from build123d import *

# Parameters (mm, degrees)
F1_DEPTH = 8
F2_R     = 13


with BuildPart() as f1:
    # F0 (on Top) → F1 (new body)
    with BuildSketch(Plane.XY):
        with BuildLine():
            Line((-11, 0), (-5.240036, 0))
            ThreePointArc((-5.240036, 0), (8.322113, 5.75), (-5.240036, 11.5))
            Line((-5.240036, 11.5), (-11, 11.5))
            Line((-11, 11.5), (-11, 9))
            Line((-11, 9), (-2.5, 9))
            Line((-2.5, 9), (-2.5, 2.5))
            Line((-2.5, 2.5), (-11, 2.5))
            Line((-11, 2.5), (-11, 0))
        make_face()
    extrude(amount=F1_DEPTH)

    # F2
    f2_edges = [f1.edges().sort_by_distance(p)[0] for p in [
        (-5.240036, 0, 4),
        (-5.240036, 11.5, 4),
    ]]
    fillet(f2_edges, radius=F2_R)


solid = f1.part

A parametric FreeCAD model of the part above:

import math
import FreeCAD as App
import Part
import Sketcher
Q = App.Units.Quantity


def edges_at(feature, points):
    """Names of the edges that pass closest to the given points."""
    edges = feature.Shape.Edges
    near = lambda p: min(range(len(edges)), key=lambda i: edges[i].distToShape(Part.Vertex(*p))[0])
    return sorted({f"Edge{near(p) + 1}" for p in points})

doc = App.newDocument("Part")
body = doc.addObject("PartDesign::Body", "Body")

# Sketch on XY plane
sketch1 = body.newObject("Sketcher::SketchObject", "Sketch")
sketch1.AttachmentSupport = (doc.getObject("XY_Plane"), [""])
sketch1.MapMode = "FlatFace"
sketch1.addGeometry(Part.LineSegment(App.Vector(-11, 0, 0), App.Vector(-5.2, 0, 0)), False)
sketch1.addGeometry(Part.ArcOfCircle(Part.Circle(App.Vector(0.3, 5.8, 0), App.Vector(0, 0, 1), 8), math.radians(-134), math.radians(134)), False)
sketch1.addGeometry(Part.LineSegment(App.Vector(-5.2, 11.5, 0), App.Vector(-11, 11.5, 0)), False)
sketch1.addGeometry(Part.LineSegment(App.Vector(-11, 11.5, 0), App.Vector(-11, 9, 0)), False)
sketch1.addGeometry(Part.LineSegment(App.Vector(-11, 9, 0), App.Vector(-2.5, 9, 0)), False)
sketch1.addGeometry(Part.LineSegment(App.Vector(-2.5, 9, 0), App.Vector(-2.5, 2.5, 0)), False)
sketch1.addGeometry(Part.LineSegment(App.Vector(-2.5, 2.5, 0), App.Vector(-11, 2.5, 0)), False)
sketch1.addGeometry(Part.LineSegment(App.Vector(-11, 2.5, 0), App.Vector(-11, 0, 0)), False)
sketch1.addConstraint(Sketcher.Constraint("Coincident", 0, 2, 1, 1))
sketch1.addConstraint(Sketcher.Constraint("Coincident", 1, 2, 2, 1))
sketch1.addConstraint(Sketcher.Constraint("Coincident", 2, 2, 3, 1))
sketch1.addConstraint(Sketcher.Constraint("Coincident", 3, 2, 4, 1))
sketch1.addConstraint(Sketcher.Constraint("Coincident", 4, 2, 5, 1))
sketch1.addConstraint(Sketcher.Constraint("Coincident", 5, 2, 6, 1))
sketch1.addConstraint(Sketcher.Constraint("Coincident", 6, 2, 7, 1))
sketch1.addConstraint(Sketcher.Constraint("Coincident", 7, 2, 0, 1))
sketch1.addConstraint(Sketcher.Constraint("Horizontal", 0))
sketch1.addConstraint(Sketcher.Constraint("Horizontal", 2))
sketch1.addConstraint(Sketcher.Constraint("Vertical", 3))
sketch1.addConstraint(Sketcher.Constraint("Horizontal", 4))
sketch1.addConstraint(Sketcher.Constraint("Vertical", 5))
sketch1.addConstraint(Sketcher.Constraint("Horizontal", 6))
sketch1.addConstraint(Sketcher.Constraint("Vertical", 7))
sketch1.addConstraint(Sketcher.Constraint("PointOnObject", 0, 2, -1))
sketch1.addConstraint(Sketcher.Constraint("Vertical", 0, 2, 1, 2))
sketch1.addConstraint(Sketcher.Constraint("Vertical", 3, 2, 6, 2))
sketch1.addConstraint(Sketcher.Constraint("Equal", 3, 7))
sketch1.addConstraint(Sketcher.Constraint("Radius", 1, Q("8 mm")))
sketch1.addConstraint(Sketcher.Constraint("DistanceX", 4, 1, 4, 2, Q("8.5 mm")))
sketch1.addConstraint(Sketcher.Constraint("DistanceY", 3, 2, 3, 1, Q("2.5 mm")))
sketch1.addConstraint(Sketcher.Constraint("DistanceY", 5, 2, 5, 1, Q("6.5 mm")))
sketch1.addConstraint(Sketcher.Constraint("DistanceX", 2, 2, -1, 1, Q("11 mm")))
sketch1.addConstraint(Sketcher.Constraint("DistanceX", 0, 1, 0, 2, Q("5.759964 mm")))
pad1 = body.newObject("PartDesign::Pad", "Pad")
pad1.Profile = sketch1
pad1.Length = 8
doc.recompute()

fillet = body.newObject("PartDesign::Fillet", "Fillet")
fillet.Base = (pad1, edges_at(pad1, [(-5.24, 0, 4), (-5.24, 11.5, 4)]))
fillet.Radius = 13

doc.recompute()
